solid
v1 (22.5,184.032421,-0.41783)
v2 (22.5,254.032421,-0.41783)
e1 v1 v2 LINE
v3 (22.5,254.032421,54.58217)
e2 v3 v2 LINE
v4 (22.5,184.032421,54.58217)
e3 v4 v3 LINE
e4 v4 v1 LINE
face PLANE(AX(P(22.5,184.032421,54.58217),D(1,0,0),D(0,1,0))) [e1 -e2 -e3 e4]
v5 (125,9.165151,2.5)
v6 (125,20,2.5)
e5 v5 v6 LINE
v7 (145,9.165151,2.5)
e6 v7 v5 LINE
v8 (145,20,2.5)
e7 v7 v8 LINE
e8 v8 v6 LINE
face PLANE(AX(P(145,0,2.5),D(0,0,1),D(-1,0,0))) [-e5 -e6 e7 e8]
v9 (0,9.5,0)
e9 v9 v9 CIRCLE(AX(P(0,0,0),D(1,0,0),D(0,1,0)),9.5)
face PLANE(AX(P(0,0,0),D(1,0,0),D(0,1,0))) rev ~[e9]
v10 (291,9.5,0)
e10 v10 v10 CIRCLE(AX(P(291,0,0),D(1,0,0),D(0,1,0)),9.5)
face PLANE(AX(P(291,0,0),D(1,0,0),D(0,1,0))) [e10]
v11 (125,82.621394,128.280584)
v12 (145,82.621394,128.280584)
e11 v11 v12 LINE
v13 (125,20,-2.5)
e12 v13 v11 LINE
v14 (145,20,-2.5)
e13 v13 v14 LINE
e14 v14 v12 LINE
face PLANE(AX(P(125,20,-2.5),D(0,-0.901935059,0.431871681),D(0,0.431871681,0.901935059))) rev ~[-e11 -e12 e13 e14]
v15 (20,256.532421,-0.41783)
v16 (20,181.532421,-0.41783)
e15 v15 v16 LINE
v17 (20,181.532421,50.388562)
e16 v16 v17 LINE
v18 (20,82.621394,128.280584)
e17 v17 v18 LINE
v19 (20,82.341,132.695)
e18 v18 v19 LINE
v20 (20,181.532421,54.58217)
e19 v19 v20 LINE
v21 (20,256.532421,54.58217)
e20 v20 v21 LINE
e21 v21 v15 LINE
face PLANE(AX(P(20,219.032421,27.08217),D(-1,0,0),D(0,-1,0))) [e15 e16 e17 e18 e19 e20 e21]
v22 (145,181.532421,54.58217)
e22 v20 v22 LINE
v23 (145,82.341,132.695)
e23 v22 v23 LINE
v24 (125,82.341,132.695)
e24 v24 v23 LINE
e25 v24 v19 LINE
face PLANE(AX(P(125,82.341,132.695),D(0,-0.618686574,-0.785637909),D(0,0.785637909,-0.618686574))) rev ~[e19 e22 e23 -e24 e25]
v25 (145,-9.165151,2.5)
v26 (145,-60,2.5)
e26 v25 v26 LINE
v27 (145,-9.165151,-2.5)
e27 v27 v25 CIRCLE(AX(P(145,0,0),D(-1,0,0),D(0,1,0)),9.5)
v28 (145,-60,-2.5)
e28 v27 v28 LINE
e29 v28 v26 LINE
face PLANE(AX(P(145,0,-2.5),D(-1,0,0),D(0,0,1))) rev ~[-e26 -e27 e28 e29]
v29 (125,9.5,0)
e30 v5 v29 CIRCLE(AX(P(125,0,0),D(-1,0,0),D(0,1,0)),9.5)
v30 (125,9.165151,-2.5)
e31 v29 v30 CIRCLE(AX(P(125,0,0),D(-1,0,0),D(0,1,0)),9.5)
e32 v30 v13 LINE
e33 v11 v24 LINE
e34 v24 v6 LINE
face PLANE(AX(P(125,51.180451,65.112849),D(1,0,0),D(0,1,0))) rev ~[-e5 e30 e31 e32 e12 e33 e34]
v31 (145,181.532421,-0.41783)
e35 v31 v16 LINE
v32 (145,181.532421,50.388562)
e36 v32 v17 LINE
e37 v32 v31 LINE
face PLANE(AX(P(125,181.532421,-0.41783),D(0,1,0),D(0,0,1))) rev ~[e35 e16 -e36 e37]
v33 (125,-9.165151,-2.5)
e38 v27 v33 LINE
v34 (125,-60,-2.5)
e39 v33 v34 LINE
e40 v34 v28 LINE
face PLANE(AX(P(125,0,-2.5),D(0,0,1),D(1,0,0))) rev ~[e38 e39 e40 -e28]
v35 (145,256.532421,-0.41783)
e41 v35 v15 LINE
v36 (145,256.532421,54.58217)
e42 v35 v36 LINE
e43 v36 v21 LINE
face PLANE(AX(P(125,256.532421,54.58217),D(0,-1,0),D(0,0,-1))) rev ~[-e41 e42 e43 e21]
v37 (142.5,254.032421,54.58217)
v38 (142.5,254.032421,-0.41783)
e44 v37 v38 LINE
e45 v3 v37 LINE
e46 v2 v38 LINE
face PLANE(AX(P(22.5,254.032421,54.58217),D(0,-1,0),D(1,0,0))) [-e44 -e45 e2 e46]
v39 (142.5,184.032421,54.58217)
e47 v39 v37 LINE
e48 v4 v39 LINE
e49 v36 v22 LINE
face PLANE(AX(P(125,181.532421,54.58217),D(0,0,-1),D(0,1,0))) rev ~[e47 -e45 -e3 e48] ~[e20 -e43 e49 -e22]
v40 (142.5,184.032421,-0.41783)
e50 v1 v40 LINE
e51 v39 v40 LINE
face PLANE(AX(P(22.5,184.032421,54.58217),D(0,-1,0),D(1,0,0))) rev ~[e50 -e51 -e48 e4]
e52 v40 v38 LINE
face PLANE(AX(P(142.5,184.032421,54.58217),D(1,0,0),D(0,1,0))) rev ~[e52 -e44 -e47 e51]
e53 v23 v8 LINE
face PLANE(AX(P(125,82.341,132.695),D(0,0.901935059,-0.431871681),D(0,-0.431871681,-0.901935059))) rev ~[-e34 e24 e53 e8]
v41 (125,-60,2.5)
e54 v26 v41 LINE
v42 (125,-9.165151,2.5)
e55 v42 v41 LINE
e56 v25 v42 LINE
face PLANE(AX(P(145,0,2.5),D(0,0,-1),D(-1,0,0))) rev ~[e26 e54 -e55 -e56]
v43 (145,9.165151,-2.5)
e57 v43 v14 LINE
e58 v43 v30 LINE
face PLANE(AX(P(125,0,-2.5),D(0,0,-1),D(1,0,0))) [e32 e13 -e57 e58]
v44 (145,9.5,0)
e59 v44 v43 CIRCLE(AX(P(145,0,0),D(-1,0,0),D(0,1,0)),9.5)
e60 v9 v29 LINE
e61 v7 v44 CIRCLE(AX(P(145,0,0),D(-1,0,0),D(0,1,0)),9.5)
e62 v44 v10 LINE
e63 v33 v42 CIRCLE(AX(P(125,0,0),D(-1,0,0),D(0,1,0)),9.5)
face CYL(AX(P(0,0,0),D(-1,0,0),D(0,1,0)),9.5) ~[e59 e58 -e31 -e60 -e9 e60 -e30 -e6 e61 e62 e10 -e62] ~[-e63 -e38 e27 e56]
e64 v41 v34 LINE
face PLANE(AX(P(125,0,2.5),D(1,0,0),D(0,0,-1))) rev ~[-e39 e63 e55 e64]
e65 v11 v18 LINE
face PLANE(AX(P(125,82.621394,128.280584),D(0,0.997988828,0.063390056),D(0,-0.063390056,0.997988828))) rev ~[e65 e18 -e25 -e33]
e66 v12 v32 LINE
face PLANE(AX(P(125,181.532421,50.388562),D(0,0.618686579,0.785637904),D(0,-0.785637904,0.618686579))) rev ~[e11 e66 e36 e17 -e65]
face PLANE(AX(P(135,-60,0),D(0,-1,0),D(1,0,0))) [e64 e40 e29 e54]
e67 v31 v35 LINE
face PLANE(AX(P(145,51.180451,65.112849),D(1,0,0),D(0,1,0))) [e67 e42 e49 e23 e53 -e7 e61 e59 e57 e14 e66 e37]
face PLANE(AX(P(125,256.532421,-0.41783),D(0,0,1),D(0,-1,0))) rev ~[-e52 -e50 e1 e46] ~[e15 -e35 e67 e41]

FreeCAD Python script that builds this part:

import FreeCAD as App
import Part
import Sketcher

V = App.Vector
Q = App.Units.Quantity

doc = App.newDocument("Part")
body = doc.addObject("PartDesign::Body", "Body")

# Sketch on YZ plane
sketch1 = body.newObject("Sketcher::SketchObject", "Sketch")
sketch1.AttachmentSupport = (doc.getObject("YZ_Plane"), [""])
sketch1.MapMode = "FlatFace"
sketch1.addGeometry(Part.Circle(V(0, 0, 0), V(0, 0, 1), 10), False)
sketch1.addConstraint([
    Sketcher.Constraint("Coincident", 0, 3, -1, 1),
    Sketcher.Constraint("Diameter", 0, Q("19 mm")),
])
pad1 = body.newObject("PartDesign::Pad", "Pad")
pad1.Profile = sketch1
pad1.Length = 291

# Sketch on XZ plane
sketch2 = body.newObject("Sketcher::SketchObject", "Sketch001")
sketch2.AttachmentSupport = (doc.getObject("XZ_Plane"), [""])
sketch2.MapMode = "FlatFace"
sketch2.addGeometry([
    Part.LineSegment(V(125, -2, 0), V(145, -2, 0)),
    Part.LineSegment(V(145, -2, 0), V(145, 2, 0)),
    Part.LineSegment(V(145, 2, 0), V(125, 2, 0)),
    Part.LineSegment(V(125, 2, 0), V(125, -2, 0)),
], False)
sketch2.addConstraint([
    Sketcher.Constraint("Coincident", 0, 2, 1, 1),
    Sketcher.Constraint("Coincident", 1, 2, 2, 1),
    Sketcher.Constraint("Coincident", 2, 2, 3, 1),
    Sketcher.Constraint("Coincident", 3, 2, 0, 1),
    Sketcher.Constraint("Horizontal", 0),
    Sketcher.Constraint("Vertical", 1),
    Sketcher.Constraint("Horizontal", 2),
    Sketcher.Constraint("Vertical", 3),
    Sketcher.Constraint("DistanceX", 0, 1, 0, 2, Q("20 mm")),
    Sketcher.Constraint("DistanceY", 1, 1, 1, 2, Q("5 mm")),
    Sketcher.Constraint("DistanceX", -1, 1, 0, 2, Q("145 mm")),
    Sketcher.Constraint("DistanceY", 0, 2, -1, 1, Q("2.5 mm")),
])
pad2 = body.newObject("PartDesign::Pad", "Pad001")
pad2.Profile = sketch2
pad2.Length = 60

# Sketch on XZ plane
sketch3 = body.newObject("Sketcher::SketchObject", "Sketch002")
sketch3.AttachmentSupport = (doc.getObject("XZ_Plane"), [""])
sketch3.MapMode = "FlatFace"
sketch3.addGeometry([
    Part.LineSegment(V(125, -2, 0), V(145, -2, 0)),
    Part.LineSegment(V(145, -2, 0), V(145, 2, 0)),
    Part.LineSegment(V(145, 2, 0), V(125, 2, 0)),
    Part.LineSegment(V(125, 2, 0), V(125, -2, 0)),
], False)
sketch3.addConstraint([
    Sketcher.Constraint("Coincident", 0, 2, 1, 1),
    Sketcher.Constraint("Coincident", 1, 2, 2, 1),
    Sketcher.Constraint("Coincident", 2, 2, 3, 1),
    Sketcher.Constraint("Coincident", 3, 2, 0, 1),
    Sketcher.Constraint("Horizontal", 0),
    Sketcher.Constraint("Vertical", 1),
    Sketcher.Constraint("Horizontal", 2),
    Sketcher.Constraint("Vertical", 3),
    Sketcher.Constraint("DistanceX", 0, 1, 0, 2, Q("20 mm")),
    Sketcher.Constraint("DistanceY", 1, 1, 1, 2, Q("5 mm")),
    Sketcher.Constraint("DistanceX", -1, 1, 0, 2, Q("145 mm")),
    Sketcher.Constraint("DistanceY", 0, 2, -1, 1, Q("2.5 mm")),
])
pad3 = body.newObject("PartDesign::Pad", "Pad002")
pad3.Profile = sketch3
pad3.Length = 20
pad3.Reversed = True

# Sketch on YZ plane
sketch4 = body.newObject("Sketcher::SketchObject", "Sketch003")
sketch4.AttachmentSupport = (doc.getObject("YZ_Plane"), [""])
sketch4.MapMode = "FlatFace"
sketch4.AttachmentOffset = App.Placement(V(0, 0, 125), App.Rotation())
sketch4.addGeometry([
    Part.LineSegment(V(20, 2.5, 0), V(20, -2.5, 0)),
    Part.LineSegment(V(20, -2.5, 0), V(82.6, 128.3, 0)),
    Part.LineSegment(V(82.6, 128.3, 0), V(82.3, 132.7, 0)),
    Part.LineSegment(V(82.3, 132.7, 0), V(20, 2.5, 0)),
], False)
sketch4.addConstraint([
    Sketcher.Constraint("Coincident", 0, 2, 1, 1),
    Sketcher.Constraint("Coincident", 1, 2, 2, 1),
    Sketcher.Constraint("Coincident", 2, 2, 3, 1),
    Sketcher.Constraint("Coincident", 3, 2, 0, 1),
    Sketcher.Constraint("Vertical", 0),
    Sketcher.Constraint("Parallel", 1, 3),
    Sketcher.Constraint("DistanceY", 0, 2, 0, 1, Q("5 mm")),
    Sketcher.Constraint("Distance", 1, Q("145 mm")),
    Sketcher.Constraint("DistanceX", -1, 1, 0, 2, Q("20 mm")),
    Sketcher.Constraint("DistanceY", 0, 2, -1, 1, Q("2.5 mm")),
    Sketcher.Constraint("DistanceX", -1, 1, 2, 2, Q("82.341 mm")),
    Sketcher.Constraint("DistanceY", -1, 1, 2, 2, Q("132.695 mm")),
])
pad4 = body.newObject("PartDesign::Pad", "Pad003")
pad4.Profile = sketch4
pad4.Length = 20

# Sketch on YZ plane
sketch5 = body.newObject("Sketcher::SketchObject", "Sketch004")
sketch5.AttachmentSupport = (doc.getObject("YZ_Plane"), [""])
sketch5.MapMode = "FlatFace"
sketch5.AttachmentOffset = App.Placement(V(0, 0, 125), App.Rotation())
sketch5.addGeometry([
    Part.LineSegment(V(20, 2, 0), V(20, -2, 0)),  # 0
    Part.LineSegment(V(20, -2, 0), V(83, 128, 0)),  # 1
    Part.LineSegment(V(83, 128, 0), V(182, 50, 0)),  # 2
    Part.LineSegment(V(182, 50, 0), V(182, 0, 0)),  # 3
    Part.LineSegment(V(182, 0, 0), V(257, 0, 0)),  # 4
    Part.LineSegment(V(257, 0, 0), V(257, 55, 0)),  # 5
    Part.LineSegment(V(257, 55, 0), V(182, 55, 0)),  # 6
    Part.LineSegment(V(182, 55, 0), V(82, 133, 0)),  # 7
    Part.LineSegment(V(82, 133, 0), V(20, 2, 0)),  # 8
], False)
sketch5.addConstraint([
    Sketcher.Constraint("Coincident", 0, 2, 1, 1),
    Sketcher.Constraint("Coincident", 1, 2, 2, 1),
    Sketcher.Constraint("Coincident", 2, 2, 3, 1),
    Sketcher.Constraint("Coincident", 3, 2, 4, 1),
    Sketcher.Constraint("Coincident", 4, 2, 5, 1),
    Sketcher.Constraint("Coincident", 5, 2, 6, 1),
    Sketcher.Constraint("Coincident", 6, 2, 7, 1),
    Sketcher.Constraint("Coincident", 7, 2, 8, 1),
    Sketcher.Constraint("Coincident", 8, 2, 0, 1),
    Sketcher.Constraint("Vertical", 0),
    Sketcher.Constraint("Vertical", 3),
    Sketcher.Constraint("Horizontal", 4),
    Sketcher.Constraint("Vertical", 5),
    Sketcher.Constraint("Horizontal", 6),
    Sketcher.Constraint("Parallel", 2, 7),
    Sketcher.Constraint("Parallel", 1, 8),
    Sketcher.Constraint("Vertical", 3, 2, 6, 2),
    Sketcher.Constraint("DistanceX", 4, 1, 4, 2, Q("75 mm")),
    Sketcher.Constraint("DistanceY", 0, 2, 0, 1, Q("5 mm")),
    Sketcher.Constraint("DistanceY", 5, 1, 5, 2, Q("55 mm")),
    Sketcher.Constraint("Distance", 1, Q("145 mm")),
    Sketcher.Constraint("DistanceX", -1, 1, 0, 2, Q("20 mm")),
    Sketcher.Constraint("DistanceY", 0, 2, -1, 1, Q("2.5 mm")),
    Sketcher.Constraint("Distance", 2, Q("125.899001 mm")),
    Sketcher.Constraint("DistanceX", -1, 1, 7, 2, Q("82.341 mm")),
    Sketcher.Constraint("DistanceY", -1, 1, 7, 2, Q("132.695 mm")),
    Sketcher.Constraint("DistanceX", -1, 1, 2, 2, Q("181.532421 mm")),
])
pad5 = body.newObject("PartDesign::Pad", "Pad004")
pad5.Profile = sketch5
pad5.Length = 20

# Sketch on YZ plane
sketch6 = body.newObject("Sketcher::SketchObject", "Sketch005")
sketch6.AttachmentSupport = (doc.getObject("YZ_Plane"), [""])
sketch6.MapMode = "FlatFace"
sketch6.AttachmentOffset = App.Placement(V(0, 0, 125), App.Rotation())
sketch6.addGeometry([
    Part.LineSegment(V(181.5, 54.6, 0), V(256.5, 54.6, 0)),  # 0
    Part.LineSegment(V(256.5, 54.6, 0), V(256.5, -0.4, 0)),  # 1
    Part.LineSegment(V(256.5, -0.4, 0), V(181.5, -0.4, 0)),  # 2
    Part.LineSegment(V(181.5, -0.4, 0), V(181.5, 50.4, 0)),  # 3
    Part.LineSegment(V(181.5, 50.4, 0), V(82.6, 128.3, 0)),  # 4
    Part.LineSegment(V(82.6, 128.3, 0), V(82.3, 132.7, 0)),  # 5
    Part.LineSegment(V(82.3, 132.7, 0), V(181.5, 54.6, 0)),  # 6
], False)
sketch6.addConstraint([
    Sketcher.Constraint("Coincident", 0, 2, 1, 1),
    Sketcher.Constraint("Coincident", 1, 2, 2, 1),
    Sketcher.Constraint("Coincident", 2, 2, 3, 1),
    Sketcher.Constraint("Coincident", 3, 2, 4, 1),
    Sketcher.Constraint("Coincident", 4, 2, 5, 1),
    Sketcher.Constraint("Coincident", 5, 2, 6, 1),
    Sketcher.Constraint("Coincident", 6, 2, 0, 1),
    Sketcher.Constraint("Horizontal", 0),
    Sketcher.Constraint("Vertical", 1),
    Sketcher.Constraint("Horizontal", 2),
    Sketcher.Constraint("Vertical", 3),
    Sketcher.Constraint("Parallel", 4, 6),
    Sketcher.Constraint("Vertical", 3, 2, 6, 2),
    Sketcher.Constraint("DistanceX", 0, 1, 0, 2, Q("75 mm")),
    Sketcher.Constraint("DistanceY", 1, 2, 1, 1, Q("55 mm")),
    Sketcher.Constraint("Distance", 4, Q("125.899001 mm")),
    Sketcher.Constraint("DistanceX", -1, 1, 5, 2, Q("82.341 mm")),
    Sketcher.Constraint("DistanceY", -1, 1, 5, 2, Q("132.695 mm")),
    Sketcher.Constraint("Distance", 6, Q("126.2559 mm")),
    Sketcher.Constraint("DistanceY", 3, 1, 3, 2, Q("50.806392 mm")),
    Sketcher.Constraint("DistanceX", -1, 1, 0, 2, Q("256.532421 mm")),
])
pad6 = body.newObject("PartDesign::Pad", "Pad005")
pad6.Profile = sketch6
pad6.Length = 105
pad6.Reversed = True

# Sketch on XY plane
sketch7 = body.newObject("Sketcher::SketchObject", "Sketch006")
sketch7.AttachmentSupport = (doc.getObject("XY_Plane"), [""])
sketch7.MapMode = "FlatFace"
sketch7.AttachmentOffset = App.Placement(V(0, 0, 54.58217), App.Rotation())
sketch7.addGeometry([
    Part.LineSegment(V(22, 254, 0), V(22, 184, 0)),
    Part.LineSegment(V(22, 184, 0), V(142, 184, 0)),
    Part.LineSegment(V(142, 184, 0), V(142, 254, 0)),
    Part.LineSegment(V(142, 254, 0), V(22, 254, 0)),
], False)
sketch7.addConstraint([
    Sketcher.Constraint("Coincident", 0, 2, 1, 1),
    Sketcher.Constraint("Coincident", 1, 2, 2, 1),
    Sketcher.Constraint("Coincident", 2, 2, 3, 1),
    Sketcher.Constraint("Coincident", 3, 2, 0, 1),
    Sketcher.Constraint("Vertical", 0),
    Sketcher.Constraint("Horizontal", 1),
    Sketcher.Constraint("Vertical", 2),
    Sketcher.Constraint("Horizontal", 3),
    Sketcher.Constraint("DistanceX", 1, 1, 1, 2, Q("120 mm")),
    Sketcher.Constraint("DistanceY", 0, 2, 0, 1, Q("70 mm")),
    Sketcher.Constraint("DistanceX", -1, 1, 0, 2, Q("22.5 mm")),
    Sketcher.Constraint("DistanceY", -1, 1, 0, 2, Q("184.032421 mm")),
])
pocket1 = body.newObject("PartDesign::Pocket", "Pocket")
pocket1.Profile = sketch7
pocket1.Length = 149.5

doc.recompute()
